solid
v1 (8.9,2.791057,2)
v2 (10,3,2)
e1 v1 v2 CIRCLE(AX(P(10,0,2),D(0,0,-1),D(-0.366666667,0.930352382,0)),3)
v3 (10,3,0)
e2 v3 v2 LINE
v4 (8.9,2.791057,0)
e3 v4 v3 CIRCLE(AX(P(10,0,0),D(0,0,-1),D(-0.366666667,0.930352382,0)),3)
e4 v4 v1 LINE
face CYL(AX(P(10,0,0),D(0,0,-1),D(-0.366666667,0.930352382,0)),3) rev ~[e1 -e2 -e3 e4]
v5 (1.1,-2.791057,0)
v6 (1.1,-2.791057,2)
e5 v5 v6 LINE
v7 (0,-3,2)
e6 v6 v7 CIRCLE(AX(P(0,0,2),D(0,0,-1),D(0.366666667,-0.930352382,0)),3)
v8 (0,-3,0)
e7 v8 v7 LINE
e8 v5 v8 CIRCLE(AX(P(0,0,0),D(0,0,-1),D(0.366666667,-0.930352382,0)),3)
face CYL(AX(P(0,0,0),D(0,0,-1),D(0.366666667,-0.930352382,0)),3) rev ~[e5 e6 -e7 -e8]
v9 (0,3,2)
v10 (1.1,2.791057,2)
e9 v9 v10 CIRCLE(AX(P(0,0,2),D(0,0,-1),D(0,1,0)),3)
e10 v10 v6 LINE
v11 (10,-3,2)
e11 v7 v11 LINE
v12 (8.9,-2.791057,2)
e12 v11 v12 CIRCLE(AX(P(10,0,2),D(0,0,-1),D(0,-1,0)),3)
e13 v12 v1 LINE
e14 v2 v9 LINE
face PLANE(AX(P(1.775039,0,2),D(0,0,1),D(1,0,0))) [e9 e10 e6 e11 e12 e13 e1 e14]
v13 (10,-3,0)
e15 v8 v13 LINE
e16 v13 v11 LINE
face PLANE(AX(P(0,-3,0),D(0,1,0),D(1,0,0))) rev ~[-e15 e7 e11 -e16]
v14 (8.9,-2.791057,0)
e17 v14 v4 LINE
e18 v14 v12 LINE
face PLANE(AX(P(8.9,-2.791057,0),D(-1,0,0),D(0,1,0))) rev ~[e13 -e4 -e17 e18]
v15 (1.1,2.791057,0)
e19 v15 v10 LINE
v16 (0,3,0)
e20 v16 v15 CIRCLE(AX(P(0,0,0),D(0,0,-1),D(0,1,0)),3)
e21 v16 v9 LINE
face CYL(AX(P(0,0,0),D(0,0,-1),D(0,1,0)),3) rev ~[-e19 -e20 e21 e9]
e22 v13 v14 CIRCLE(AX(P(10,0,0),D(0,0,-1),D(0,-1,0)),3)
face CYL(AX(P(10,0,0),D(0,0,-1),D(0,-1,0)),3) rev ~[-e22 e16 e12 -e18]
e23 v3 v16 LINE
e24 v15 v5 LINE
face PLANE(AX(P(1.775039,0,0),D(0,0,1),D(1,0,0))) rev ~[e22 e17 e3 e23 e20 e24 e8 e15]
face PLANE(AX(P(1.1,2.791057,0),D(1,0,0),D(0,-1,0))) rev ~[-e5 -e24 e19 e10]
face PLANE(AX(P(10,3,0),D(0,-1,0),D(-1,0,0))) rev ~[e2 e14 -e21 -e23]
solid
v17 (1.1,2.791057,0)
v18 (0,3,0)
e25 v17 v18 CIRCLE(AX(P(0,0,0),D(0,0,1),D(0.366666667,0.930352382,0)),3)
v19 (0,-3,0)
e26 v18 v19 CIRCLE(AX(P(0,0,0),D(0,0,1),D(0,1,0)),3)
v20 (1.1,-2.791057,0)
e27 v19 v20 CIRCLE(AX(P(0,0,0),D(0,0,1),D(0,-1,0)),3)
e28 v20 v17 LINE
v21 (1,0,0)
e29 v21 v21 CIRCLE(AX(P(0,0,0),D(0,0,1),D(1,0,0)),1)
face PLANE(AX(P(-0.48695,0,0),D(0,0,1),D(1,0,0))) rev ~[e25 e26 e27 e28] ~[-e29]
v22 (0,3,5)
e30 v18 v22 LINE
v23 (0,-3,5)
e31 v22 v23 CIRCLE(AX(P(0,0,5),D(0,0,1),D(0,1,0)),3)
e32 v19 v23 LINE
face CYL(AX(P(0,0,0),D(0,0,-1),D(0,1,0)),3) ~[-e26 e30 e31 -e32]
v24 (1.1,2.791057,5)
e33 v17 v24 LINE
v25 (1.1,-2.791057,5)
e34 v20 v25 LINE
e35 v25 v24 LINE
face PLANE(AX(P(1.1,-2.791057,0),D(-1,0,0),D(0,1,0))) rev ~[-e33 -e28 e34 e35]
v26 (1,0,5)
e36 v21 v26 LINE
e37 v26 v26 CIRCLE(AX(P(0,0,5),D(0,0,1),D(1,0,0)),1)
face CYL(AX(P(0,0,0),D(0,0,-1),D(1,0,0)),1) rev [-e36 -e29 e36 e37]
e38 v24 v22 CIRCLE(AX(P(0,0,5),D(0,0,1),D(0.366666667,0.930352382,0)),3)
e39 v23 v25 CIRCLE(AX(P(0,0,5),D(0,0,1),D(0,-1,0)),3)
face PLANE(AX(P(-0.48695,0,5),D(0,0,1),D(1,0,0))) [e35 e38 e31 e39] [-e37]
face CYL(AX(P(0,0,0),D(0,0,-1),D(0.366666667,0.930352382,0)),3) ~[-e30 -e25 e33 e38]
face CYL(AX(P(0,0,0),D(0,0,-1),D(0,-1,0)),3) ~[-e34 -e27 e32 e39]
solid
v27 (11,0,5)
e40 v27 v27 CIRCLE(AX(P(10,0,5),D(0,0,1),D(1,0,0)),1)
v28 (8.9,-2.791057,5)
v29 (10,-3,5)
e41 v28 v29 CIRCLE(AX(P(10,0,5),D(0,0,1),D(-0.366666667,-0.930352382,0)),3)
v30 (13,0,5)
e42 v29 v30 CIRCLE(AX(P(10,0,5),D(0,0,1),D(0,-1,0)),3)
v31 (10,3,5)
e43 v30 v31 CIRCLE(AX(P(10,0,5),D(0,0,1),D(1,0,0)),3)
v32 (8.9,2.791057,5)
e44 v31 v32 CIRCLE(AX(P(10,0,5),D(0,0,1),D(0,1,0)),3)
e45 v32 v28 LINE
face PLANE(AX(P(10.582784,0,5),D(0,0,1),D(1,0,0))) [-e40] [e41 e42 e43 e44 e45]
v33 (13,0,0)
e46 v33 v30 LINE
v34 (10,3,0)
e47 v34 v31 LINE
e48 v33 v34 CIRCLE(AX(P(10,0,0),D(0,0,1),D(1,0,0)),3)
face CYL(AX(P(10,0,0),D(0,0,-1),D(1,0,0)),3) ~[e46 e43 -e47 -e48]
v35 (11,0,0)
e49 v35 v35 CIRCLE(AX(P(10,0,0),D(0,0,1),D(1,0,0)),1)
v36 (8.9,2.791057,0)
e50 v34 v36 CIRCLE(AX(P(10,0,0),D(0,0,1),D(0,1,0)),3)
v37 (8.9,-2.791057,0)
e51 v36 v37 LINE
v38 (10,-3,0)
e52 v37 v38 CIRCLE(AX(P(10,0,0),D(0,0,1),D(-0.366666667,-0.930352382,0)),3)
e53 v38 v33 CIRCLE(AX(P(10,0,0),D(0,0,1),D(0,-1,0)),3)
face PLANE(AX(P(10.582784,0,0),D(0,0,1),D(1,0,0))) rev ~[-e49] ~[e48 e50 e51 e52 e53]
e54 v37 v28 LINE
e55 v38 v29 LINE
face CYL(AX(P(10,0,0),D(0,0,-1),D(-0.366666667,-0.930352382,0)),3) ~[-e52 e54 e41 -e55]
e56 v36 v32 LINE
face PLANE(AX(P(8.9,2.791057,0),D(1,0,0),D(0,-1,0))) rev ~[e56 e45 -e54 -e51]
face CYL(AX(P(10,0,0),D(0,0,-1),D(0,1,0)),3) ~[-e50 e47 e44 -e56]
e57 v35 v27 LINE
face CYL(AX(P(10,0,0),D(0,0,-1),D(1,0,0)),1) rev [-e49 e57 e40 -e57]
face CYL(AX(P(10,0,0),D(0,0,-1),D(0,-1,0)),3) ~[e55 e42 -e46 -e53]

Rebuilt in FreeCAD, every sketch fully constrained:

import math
import FreeCAD as App
import Part
import Sketcher
Q = App.Units.Quantity

doc = App.newDocument("Part")
body = doc.addObject("PartDesign::Body", "Body")

sketch1 = body.newObject("Sketcher::SketchObject", "Sketch")
sketch1.AttachmentSupport = (doc.getObject("XY_Plane"), [""])
sketch1.MapMode = "FlatFace"
sketch1.addGeometry(Part.LineSegment(App.Vector(1.1, -2.791057, 0), App.Vector(1.1, 2.791057, 0)), False)
sketch1.addGeometry(Part.ArcOfCircle(Part.Circle(App.Vector(0, 0, 0), App.Vector(0, 0, 1), 3), math.radians(68.489812), math.radians(90)), False)
sketch1.addGeometry(Part.ArcOfCircle(Part.Circle(App.Vector(0, 0, 0), App.Vector(0, 0, 1), 3), math.radians(90), math.radians(270)), False)
sketch1.addGeometry(Part.ArcOfCircle(Part.Circle(App.Vector(0, 0, 0), App.Vector(0, 0, 1), 3), math.radians(-90), math.radians(-68.489812)), False)
sketch1.addGeometry(Part.Circle(App.Vector(0, 0, 0), App.Vector(0, 0, 1), 1), False)
sketch1.addConstraint(Sketcher.Constraint("Coincident", 0, 2, 1, 1))
sketch1.addConstraint(Sketcher.Constraint("Tangent", 1, 2, 2, 1))
sketch1.addConstraint(Sketcher.Constraint("Tangent", 2, 2, 3, 1))
sketch1.addConstraint(Sketcher.Constraint("Coincident", 3, 2, 0, 1))
sketch1.addConstraint(Sketcher.Constraint("Vertical", 0))
sketch1.addConstraint(Sketcher.Constraint("Coincident", 1, 3, -1, 1))
sketch1.addConstraint(Sketcher.Constraint("Coincident", 4, 3, -1, 1))
sketch1.addConstraint(Sketcher.Constraint("Equal", 1, 2))
sketch1.addConstraint(Sketcher.Constraint("Equal", 2, 3))
sketch1.addConstraint(Sketcher.Constraint("PointOnObject", 1, 2, -2))
sketch1.addConstraint(Sketcher.Constraint("PointOnObject", 2, 2, -2))
sketch1.addConstraint(Sketcher.Constraint("Diameter", 4, Q("2 mm")))
sketch1.addConstraint(Sketcher.Constraint("Radius", 1, Q("3 mm")))
sketch1.addConstraint(Sketcher.Constraint("DistanceX", -1, 1, 0, 2, Q("1.1 mm")))
pad1 = body.newObject("PartDesign::Pad", "Pad")
pad1.Profile = sketch1
pad1.Length = 5
body2 = doc.addObject("PartDesign::Body", "Body001")

sketch2 = body2.newObject("Sketcher::SketchObject", "Sketch001")
sketch2.AttachmentSupport = (doc.getObject("XY_Plane001"), [""])
sketch2.MapMode = "FlatFace"
sketch2.addGeometry(Part.ArcOfCircle(Part.Circle(App.Vector(10, 0, 0), App.Vector(0, 0, 1), 3), math.radians(0), math.radians(90)), False)
sketch2.addGeometry(Part.ArcOfCircle(Part.Circle(App.Vector(10, 0, 0), App.Vector(0, 0, 1), 3), math.radians(90), math.radians(111.510188)), False)
sketch2.addGeometry(Part.LineSegment(App.Vector(8.9, 2.791057, 0), App.Vector(8.9, -2.791057, 0)), False)
sketch2.addGeometry(Part.ArcOfCircle(Part.Circle(App.Vector(10, 0, 0), App.Vector(0, 0, 1), 3), math.radians(-111.510188), math.radians(-90)), False)
sketch2.addGeometry(Part.ArcOfCircle(Part.Circle(App.Vector(10, 0, 0), App.Vector(0, 0, 1), 3), math.radians(-90), math.radians(0)), False)
sketch2.addGeometry(Part.Circle(App.Vector(10, 0, 0), App.Vector(0, 0, 1), 1), False)
sketch2.addConstraint(Sketcher.Constraint("Tangent", 0, 2, 1, 1))
sketch2.addConstraint(Sketcher.Constraint("Coincident", 1, 2, 2, 1))
sketch2.addConstraint(Sketcher.Constraint("Coincident", 2, 2, 3, 1))
sketch2.addConstraint(Sketcher.Constraint("Tangent", 3, 2, 4, 1))
sketch2.addConstraint(Sketcher.Constraint("Tangent", 4, 2, 0, 1))
sketch2.addConstraint(Sketcher.Constraint("Vertical", 2))
sketch2.addConstraint(Sketcher.Constraint("Coincident", 3, 3, 0, 3))
sketch2.addConstraint(Sketcher.Constraint("Coincident", 5, 3, 0, 3))
sketch2.addConstraint(Sketcher.Constraint("Equal", 0, 1))
sketch2.addConstraint(Sketcher.Constraint("Symmetric", 0, 2, 3, 2, -1))
sketch2.addConstraint(Sketcher.Constraint("PointOnObject", 4, 2, -1))
sketch2.addConstraint(Sketcher.Constraint("Vertical", 5, 3, 0, 2))
sketch2.addConstraint(Sketcher.Constraint("Diameter", 5, Q("2 mm")))
sketch2.addConstraint(Sketcher.Constraint("Radius", 0, Q("3 mm")))
sketch2.addConstraint(Sketcher.Constraint("DistanceX", -1, 1, 0, 3, Q("10 mm")))
sketch2.addConstraint(Sketcher.Constraint("DistanceX", -1, 1, 1, 2, Q("8.9 mm")))
pad2 = body2.newObject("PartDesign::Pad", "Pad001")
pad2.Profile = sketch2
pad2.Length = 5
body3 = doc.addObject("PartDesign::Body", "Body002")

sketch3 = body3.newObject("Sketcher::SketchObject", "Sketch002")
sketch3.AttachmentSupport = (doc.getObject("XY_Plane002"), [""])
sketch3.MapMode = "FlatFace"
sketch3.addGeometry(Part.LineSegment(App.Vector(1.1, 2.791057, 0), App.Vector(1.1, -2.791057, 0)), False)
sketch3.addGeometry(Part.ArcOfCircle(Part.Circle(App.Vector(0, 0, 0), App.Vector(0, 0, 1), 3), math.radians(-90), math.radians(-68.489812)), False)
sketch3.addGeometry(Part.LineSegment(App.Vector(0, -3, 0), App.Vector(10, -3, 0)), False)
sketch3.addGeometry(Part.ArcOfCircle(Part.Circle(App.Vector(10, 0, 0), App.Vector(0, 0, 1), 3), math.radians(-111.510188), math.radians(-90)), False)
sketch3.addGeometry(Part.LineSegment(App.Vector(8.9, -2.791057, 0), App.Vector(8.9, 2.791057, 0)), False)
sketch3.addGeometry(Part.ArcOfCircle(Part.Circle(App.Vector(10, 0, 0), App.Vector(0, 0, 1), 3), math.radians(90), math.radians(111.510188)), False)
sketch3.addGeometry(Part.LineSegment(App.Vector(10, 3, 0), App.Vector(0, 3, 0)), False)
sketch3.addGeometry(Part.ArcOfCircle(Part.Circle(App.Vector(0, 0, 0), App.Vector(0, 0, 1), 3), math.radians(68.489812), math.radians(90)), False)
sketch3.addConstraint(Sketcher.Constraint("Coincident", 0, 2, 1, 2))
sketch3.addConstraint(Sketcher.Constraint("Tangent", 1, 1, 2, 1))
sketch3.addConstraint(Sketcher.Constraint("Tangent", 2, 2, 3, 2))
sketch3.addConstraint(Sketcher.Constraint("Coincident", 3, 1, 4, 1))
sketch3.addConstraint(Sketcher.Constraint("Coincident", 4, 2, 5, 2))
sketch3.addConstraint(Sketcher.Constraint("Tangent", 5, 1, 6, 1))
sketch3.addConstraint(Sketcher.Constraint("Tangent", 6, 2, 7, 2))
sketch3.addConstraint(Sketcher.Constraint("Coincident", 7, 1, 0, 1))
sketch3.addConstraint(Sketcher.Constraint("Vertical", 0))
sketch3.addConstraint(Sketcher.Constraint("Horizontal", 2))
sketch3.addConstraint(Sketcher.Constraint("Vertical", 4))
sketch3.addConstraint(Sketcher.Constraint("Horizontal", 6))
sketch3.addConstraint(Sketcher.Constraint("Coincident", 1, 3, -1, 1))
sketch3.addConstraint(Sketcher.Constraint("Coincident", 7, 3, -1, 1))
sketch3.addConstraint(Sketcher.Constraint("Coincident", 5, 3, 3, 3))
sketch3.addConstraint(Sketcher.Constraint("Equal", 1, 3))
sketch3.addConstraint(Sketcher.Constraint("Equal", 3, 5))
sketch3.addConstraint(Sketcher.Constraint("Horizontal", 0, 2, 3, 1))
sketch3.addConstraint(Sketcher.Constraint("Radius", 1, Q("3 mm")))
sketch3.addConstraint(Sketcher.Constraint("DistanceX", 2, 1, 2, 2, Q("10 mm")))
sketch3.addConstraint(Sketcher.Constraint("DistanceX", -1, 1, 0, 2, Q("1.1 mm")))
pad3 = body3.newObject("PartDesign::Pad", "Pad002")
pad3.Profile = sketch3
pad3.Length = 2

doc.recompute()
